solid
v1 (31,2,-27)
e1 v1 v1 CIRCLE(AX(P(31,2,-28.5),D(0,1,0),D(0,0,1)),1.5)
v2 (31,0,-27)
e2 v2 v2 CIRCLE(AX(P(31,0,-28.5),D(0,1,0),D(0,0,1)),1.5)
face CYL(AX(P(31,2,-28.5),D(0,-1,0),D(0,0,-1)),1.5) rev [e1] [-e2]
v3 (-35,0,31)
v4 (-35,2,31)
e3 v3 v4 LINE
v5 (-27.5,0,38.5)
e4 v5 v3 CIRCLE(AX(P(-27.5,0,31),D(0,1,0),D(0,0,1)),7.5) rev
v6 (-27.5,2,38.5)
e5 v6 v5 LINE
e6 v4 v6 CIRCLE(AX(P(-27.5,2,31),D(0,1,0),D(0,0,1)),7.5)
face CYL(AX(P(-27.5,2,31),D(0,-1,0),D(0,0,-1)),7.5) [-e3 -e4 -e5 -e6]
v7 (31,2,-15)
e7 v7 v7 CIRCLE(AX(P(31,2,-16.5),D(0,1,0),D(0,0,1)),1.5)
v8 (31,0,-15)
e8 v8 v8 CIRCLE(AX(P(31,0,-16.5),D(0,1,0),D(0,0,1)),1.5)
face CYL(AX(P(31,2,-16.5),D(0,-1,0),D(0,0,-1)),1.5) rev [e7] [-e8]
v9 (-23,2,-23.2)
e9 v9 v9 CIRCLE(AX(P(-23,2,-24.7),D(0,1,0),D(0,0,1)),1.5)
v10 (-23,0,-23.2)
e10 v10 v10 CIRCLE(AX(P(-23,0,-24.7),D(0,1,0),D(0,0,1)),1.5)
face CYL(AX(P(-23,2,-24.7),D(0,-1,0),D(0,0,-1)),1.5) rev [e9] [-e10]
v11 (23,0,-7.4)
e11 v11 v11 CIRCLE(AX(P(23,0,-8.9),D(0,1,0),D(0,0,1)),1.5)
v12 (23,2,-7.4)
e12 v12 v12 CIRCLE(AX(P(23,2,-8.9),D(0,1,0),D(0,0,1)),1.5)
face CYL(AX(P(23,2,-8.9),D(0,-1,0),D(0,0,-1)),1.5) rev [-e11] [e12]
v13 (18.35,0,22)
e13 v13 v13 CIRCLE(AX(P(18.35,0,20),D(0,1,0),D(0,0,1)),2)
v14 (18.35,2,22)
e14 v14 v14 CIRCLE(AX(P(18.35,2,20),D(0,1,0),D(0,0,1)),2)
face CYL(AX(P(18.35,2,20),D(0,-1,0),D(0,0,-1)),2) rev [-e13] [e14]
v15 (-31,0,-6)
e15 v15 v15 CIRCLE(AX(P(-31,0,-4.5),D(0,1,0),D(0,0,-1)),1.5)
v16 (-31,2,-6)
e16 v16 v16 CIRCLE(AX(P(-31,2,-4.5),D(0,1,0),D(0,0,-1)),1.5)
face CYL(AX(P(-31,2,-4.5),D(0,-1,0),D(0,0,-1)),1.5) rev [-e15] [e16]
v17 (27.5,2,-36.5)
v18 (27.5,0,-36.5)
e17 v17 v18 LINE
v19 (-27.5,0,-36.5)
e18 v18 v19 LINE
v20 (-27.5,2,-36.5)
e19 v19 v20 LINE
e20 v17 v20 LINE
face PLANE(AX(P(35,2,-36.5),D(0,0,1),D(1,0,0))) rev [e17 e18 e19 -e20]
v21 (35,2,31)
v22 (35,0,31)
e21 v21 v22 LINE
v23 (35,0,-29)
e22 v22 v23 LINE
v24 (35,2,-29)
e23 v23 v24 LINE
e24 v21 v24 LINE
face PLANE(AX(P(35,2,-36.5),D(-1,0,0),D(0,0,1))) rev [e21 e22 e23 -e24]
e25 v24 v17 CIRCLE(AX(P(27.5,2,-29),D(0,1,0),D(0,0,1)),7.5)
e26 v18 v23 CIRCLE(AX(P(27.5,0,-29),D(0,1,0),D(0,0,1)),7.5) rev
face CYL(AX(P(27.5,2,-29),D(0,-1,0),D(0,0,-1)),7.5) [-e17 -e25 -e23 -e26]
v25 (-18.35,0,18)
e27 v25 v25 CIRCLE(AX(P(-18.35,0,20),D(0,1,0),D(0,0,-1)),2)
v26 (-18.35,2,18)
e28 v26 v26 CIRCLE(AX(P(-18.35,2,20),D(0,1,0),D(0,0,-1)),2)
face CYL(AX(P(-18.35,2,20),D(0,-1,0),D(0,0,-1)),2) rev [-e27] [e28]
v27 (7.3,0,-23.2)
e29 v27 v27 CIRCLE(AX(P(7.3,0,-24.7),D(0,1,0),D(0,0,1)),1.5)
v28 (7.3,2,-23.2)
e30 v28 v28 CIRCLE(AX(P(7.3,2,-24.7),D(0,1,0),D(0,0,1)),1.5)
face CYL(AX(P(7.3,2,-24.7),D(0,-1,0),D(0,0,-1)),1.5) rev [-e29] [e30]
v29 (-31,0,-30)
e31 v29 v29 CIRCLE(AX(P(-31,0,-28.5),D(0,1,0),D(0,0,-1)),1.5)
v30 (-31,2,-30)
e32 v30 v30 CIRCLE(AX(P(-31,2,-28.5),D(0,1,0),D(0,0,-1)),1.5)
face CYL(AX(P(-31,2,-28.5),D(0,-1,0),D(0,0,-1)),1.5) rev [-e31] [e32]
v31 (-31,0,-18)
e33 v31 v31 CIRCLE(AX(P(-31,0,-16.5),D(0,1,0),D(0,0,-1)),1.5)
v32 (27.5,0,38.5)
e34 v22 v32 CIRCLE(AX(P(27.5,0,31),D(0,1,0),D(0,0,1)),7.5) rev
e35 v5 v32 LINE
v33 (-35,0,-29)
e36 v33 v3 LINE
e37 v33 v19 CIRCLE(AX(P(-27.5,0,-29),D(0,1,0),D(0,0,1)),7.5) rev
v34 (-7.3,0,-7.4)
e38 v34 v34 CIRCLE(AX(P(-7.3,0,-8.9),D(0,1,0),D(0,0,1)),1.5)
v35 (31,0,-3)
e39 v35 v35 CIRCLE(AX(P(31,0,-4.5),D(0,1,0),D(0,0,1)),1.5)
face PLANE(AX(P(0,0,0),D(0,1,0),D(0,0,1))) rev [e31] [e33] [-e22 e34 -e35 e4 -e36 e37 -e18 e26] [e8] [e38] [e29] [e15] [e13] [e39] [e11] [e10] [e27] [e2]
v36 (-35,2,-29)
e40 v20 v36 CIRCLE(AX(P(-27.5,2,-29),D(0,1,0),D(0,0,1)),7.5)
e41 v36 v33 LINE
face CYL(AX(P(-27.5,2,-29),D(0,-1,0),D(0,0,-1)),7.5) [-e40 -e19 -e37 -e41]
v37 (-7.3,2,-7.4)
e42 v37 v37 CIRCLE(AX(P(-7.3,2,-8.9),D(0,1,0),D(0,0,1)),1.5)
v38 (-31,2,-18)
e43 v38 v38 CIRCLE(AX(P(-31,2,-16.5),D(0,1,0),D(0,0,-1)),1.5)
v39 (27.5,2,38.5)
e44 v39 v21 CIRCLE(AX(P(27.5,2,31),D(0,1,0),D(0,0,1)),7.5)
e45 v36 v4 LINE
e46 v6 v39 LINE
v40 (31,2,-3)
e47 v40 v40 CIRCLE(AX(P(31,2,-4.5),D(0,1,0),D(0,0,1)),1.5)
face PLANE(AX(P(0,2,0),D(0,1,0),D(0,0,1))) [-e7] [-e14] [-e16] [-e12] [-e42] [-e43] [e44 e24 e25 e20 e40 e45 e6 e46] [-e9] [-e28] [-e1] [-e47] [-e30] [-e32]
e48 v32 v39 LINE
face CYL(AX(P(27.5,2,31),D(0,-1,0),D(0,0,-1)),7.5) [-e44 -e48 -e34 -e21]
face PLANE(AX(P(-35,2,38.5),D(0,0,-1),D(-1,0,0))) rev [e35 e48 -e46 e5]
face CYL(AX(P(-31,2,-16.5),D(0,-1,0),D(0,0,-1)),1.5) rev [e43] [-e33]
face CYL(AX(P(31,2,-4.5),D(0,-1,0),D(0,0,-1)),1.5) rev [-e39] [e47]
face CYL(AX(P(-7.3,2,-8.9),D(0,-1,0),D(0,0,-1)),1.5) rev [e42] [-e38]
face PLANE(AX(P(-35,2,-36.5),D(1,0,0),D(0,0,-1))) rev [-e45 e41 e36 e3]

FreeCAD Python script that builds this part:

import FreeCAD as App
import Part
import Sketcher
Q = App.Units.Quantity


def edges_at(feature, points):
    """Names of the edges that pass closest to the given points."""
    edges = feature.Shape.Edges
    near = lambda p: min(range(len(edges)), key=lambda i: edges[i].distToShape(Part.Vertex(*p))[0])
    return sorted({f"Edge{near(p) + 1}" for p in points})


def add_polygon(sketch, points):
    """Adds a closed chain of lines whose ends are joined by coincident constraints."""
    first, n = sketch.GeometryCount, len(points)
    for a, b in zip(points, points[1:] + points[:1]):
        sketch.addGeometry(Part.LineSegment(App.Vector(*a, 0), App.Vector(*b, 0)), False)
    for i in range(n):
        sketch.addConstraint(Sketcher.Constraint("Coincident", first + i, 2, first + (i + 1) % n, 1))

doc = App.newDocument("Part")
params = doc.addObject("Spreadsheet::Sheet", "Params")
for row, (alias, value) in enumerate([
    ("sketch1_diameter", "4 mm"),
    ("sketch1_diameter2", "3 mm"),
    ("sketch1_width", "70 mm"),
    ("sketch1_height", "75 mm"),
    ("pad1_length", "2 mm"),
    ("fillet_radius", "7.5 mm"),
], start=1):
    params.set(f"A{row}", alias)
    params.set(f"B{row}", "=" + value)
    params.setAlias(f"B{row}", alias)

body = doc.addObject("PartDesign::Body", "Body")

# Sketch on XZ plane
sketch1 = body.newObject("Sketcher::SketchObject", "Sketch")
sketch1.AttachmentSupport = (doc.getObject("XZ_Plane"), [""])
sketch1.MapMode = "FlatFace"
add_polygon(sketch1, [(-35, -36.5), (-35, 38.5), (35, 38.5), (35, -36.5)])  # lines 0-3
sketch1.addGeometry(Part.Circle(App.Vector(-18.35, 20, 0), App.Vector(0, 0, 1), 2), False)  # 4
sketch1.addGeometry(Part.Circle(App.Vector(18.35, 20, 0), App.Vector(0, 0, 1), 2), False)  # 5
sketch1.addGeometry(Part.Circle(App.Vector(-31, -4.5, 0), App.Vector(0, 0, 1), 1.5), False)  # 6
sketch1.addGeometry(Part.Circle(App.Vector(-31, -16.5, 0), App.Vector(0, 0, 1), 1.5), False)  # 7
sketch1.addGeometry(Part.Circle(App.Vector(-7.3, -8.9, 0), App.Vector(0, 0, 1), 1.5), False)  # 8
sketch1.addGeometry(Part.Circle(App.Vector(-31, -28.5, 0), App.Vector(0, 0, 1), 1.5), False)  # 9
sketch1.addGeometry(Part.Circle(App.Vector(-23, -24.7, 0), App.Vector(0, 0, 1), 1.5), False)  # 10
sketch1.addGeometry(Part.Circle(App.Vector(23, -8.9, 0), App.Vector(0, 0, 1), 1.5), False)  # 11
sketch1.addGeometry(Part.Circle(App.Vector(31, -4.5, 0), App.Vector(0, 0, 1), 1.5), False)  # 12
sketch1.addGeometry(Part.Circle(App.Vector(31, -16.5, 0), App.Vector(0, 0, 1), 1.5), False)  # 13
sketch1.addGeometry(Part.Circle(App.Vector(7.3, -24.7, 0), App.Vector(0, 0, 1), 1.5), False)  # 14
sketch1.addGeometry(Part.Circle(App.Vector(31, -28.5, 0), App.Vector(0, 0, 1), 1.5), False)  # 15
sketch1.addConstraint([
    Sketcher.Constraint("Vertical", 0),
    Sketcher.Constraint("Horizontal", 1),
    Sketcher.Constraint("Vertical", 2),
    Sketcher.Constraint("Horizontal", 3),
    Sketcher.Constraint("Equal", 4, 5),
    Sketcher.Constraint("Equal", 6, 7),
    Sketcher.Constraint("Equal", 7, 8),
    Sketcher.Constraint("Equal", 8, 9),
    Sketcher.Constraint("Equal", 9, 10),
    Sketcher.Constraint("Equal", 10, 11),
    Sketcher.Constraint("Equal", 11, 12),
    Sketcher.Constraint("Equal", 12, 13),
    Sketcher.Constraint("Equal", 13, 14),
    Sketcher.Constraint("Equal", 14, 15),
    Sketcher.Constraint("Symmetric", 4, 3, 5, 3, -2),
    Sketcher.Constraint("Symmetric", 6, 3, 12, 3, -2),
    Sketcher.Constraint("Symmetric", 7, 3, 13, 3, -2),
    Sketcher.Constraint("Symmetric", 9, 3, 15, 3, -2),
    Sketcher.Constraint("Horizontal", 8, 3, 11, 3),
    Sketcher.Constraint("Horizontal", 10, 3, 14, 3),
    Sketcher.Constraint("Vertical", 6, 3, 7, 3),
    Sketcher.Constraint("Vertical", 7, 3, 9, 3),
    Sketcher.Constraint("Diameter", 4, Q("4 mm")),
    Sketcher.Constraint("Diameter", 6, Q("3 mm")),
    Sketcher.Constraint("DistanceX", 1, 1, 1, 2, Q("70 mm")),
    Sketcher.Constraint("DistanceY", 0, 1, 0, 2, Q("75 mm")),
    Sketcher.Constraint("DistanceY", -1, 1, 4, 3, Q("20 mm")),
    Sketcher.Constraint("DistanceX", 6, 3, -1, 1, Q("31 mm")),
    Sketcher.Constraint("DistanceX", 10, 3, -1, 1, Q("23 mm")),
    Sketcher.Constraint("DistanceX", -1, 1, 11, 3, Q("23 mm")),
    Sketcher.Constraint("DistanceX", 0, 2, -1, 1, Q("35 mm")),
    Sketcher.Constraint("DistanceY", 7, 3, 6, 3, Q("12 mm")),
    Sketcher.Constraint("DistanceY", 9, 3, 7, 3, Q("12 mm")),
    Sketcher.Constraint("DistanceY", 6, 3, 0, 2, Q("43 mm")),
    Sketcher.Constraint("DistanceY", 6, 3, -1, 1, Q("4.5 mm")),
    Sketcher.Constraint("DistanceX", 8, 3, -1, 1, Q("7.3 mm")),
    Sketcher.Constraint("DistanceY", 8, 3, -1, 1, Q("8.9 mm")),
    Sketcher.Constraint("DistanceY", 10, 3, -1, 1, Q("24.7 mm")),
    Sketcher.Constraint("DistanceX", -1, 1, 14, 3, Q("7.3 mm")),
    Sketcher.Constraint("DistanceX", 4, 3, 5, 3, Q("36.7 mm")),
])
sketch1.setExpression("Constraints[26]", "Params.sketch1_diameter")
sketch1.setExpression("Constraints[27]", "Params.sketch1_diameter2")
sketch1.setExpression("Constraints[28]", "Params.sketch1_width")
sketch1.setExpression("Constraints[29]", "Params.sketch1_height")
pad1 = body.newObject("PartDesign::Pad", "Pad")
pad1.Profile = sketch1
pad1.setExpression("Length", "Params.pad1_length")
pad1.Reversed = True
doc.recompute()

fillet = body.newObject("PartDesign::Fillet", "Fillet")
fillet.Base = (pad1, edges_at(pad1, [
    (-35, 1, -36.5),
    (35, 1, -36.5),
    (35, 1, 38.5),
    (-35, 1, 38.5),
]))
fillet.setExpression("Radius", "Params.fillet_radius")

doc.recompute()
